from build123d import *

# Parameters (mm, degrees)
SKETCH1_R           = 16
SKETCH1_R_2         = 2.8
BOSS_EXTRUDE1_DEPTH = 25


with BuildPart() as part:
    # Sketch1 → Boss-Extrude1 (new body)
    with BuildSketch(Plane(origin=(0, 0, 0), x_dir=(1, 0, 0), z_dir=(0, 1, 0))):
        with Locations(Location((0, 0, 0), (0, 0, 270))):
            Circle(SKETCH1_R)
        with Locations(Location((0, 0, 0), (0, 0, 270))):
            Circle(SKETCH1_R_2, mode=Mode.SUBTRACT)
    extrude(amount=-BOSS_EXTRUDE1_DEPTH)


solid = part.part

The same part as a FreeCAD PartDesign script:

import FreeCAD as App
import Part
import Sketcher
from FreeCAD import Vector
Q = App.Units.Quantity

doc = App.newDocument("Part")
params = doc.addObject("Spreadsheet::Sheet", "Params")
for row, (alias, value) in enumerate([
    ("sketch1_diameter", "32 mm"),
    ("sketch1_diameter2", "5.6 mm"),
    ("pad1_length", "25 mm"),
], start=1):
    params.set(f"A{row}", alias)
    params.set(f"B{row}", "=" + value)
    params.setAlias(f"B{row}", alias)

body = doc.addObject("PartDesign::Body", "Body")

# Sketch on XZ plane
sketch1 = body.newObject("Sketcher::SketchObject", "Sketch")
sketch1.AttachmentSupport = (doc.getObject("XZ_Plane"), [""])
sketch1.MapMode = "FlatFace"
sketch1.addGeometry(Part.Circle(Vector(0, 0, 0), Vector(0, 0, 1), 16), False)
sketch1.addGeometry(Part.Circle(Vector(0, 0, 0), Vector(0, 0, 1), 2.8), False)
sketch1.addConstraint(Sketcher.Constraint("Coincident", 0, 3, -1, 1))
sketch1.addConstraint(Sketcher.Constraint("Coincident", 1, 3, -1, 1))
sketch1.addConstraint(Sketcher.Constraint("Diameter", 0, Q("32 mm")))
sketch1.addConstraint(Sketcher.Constraint("Diameter", 1, Q("5.6 mm")))
sketch1.setExpression("Constraints[2]", "Params.sketch1_diameter")
sketch1.setExpression("Constraints[3]", "Params.sketch1_diameter2")
pad1 = body.newObject("PartDesign::Pad", "Pad")
pad1.Profile = sketch1
pad1.setExpression("Length", "Params.pad1_length")

doc.recompute()
